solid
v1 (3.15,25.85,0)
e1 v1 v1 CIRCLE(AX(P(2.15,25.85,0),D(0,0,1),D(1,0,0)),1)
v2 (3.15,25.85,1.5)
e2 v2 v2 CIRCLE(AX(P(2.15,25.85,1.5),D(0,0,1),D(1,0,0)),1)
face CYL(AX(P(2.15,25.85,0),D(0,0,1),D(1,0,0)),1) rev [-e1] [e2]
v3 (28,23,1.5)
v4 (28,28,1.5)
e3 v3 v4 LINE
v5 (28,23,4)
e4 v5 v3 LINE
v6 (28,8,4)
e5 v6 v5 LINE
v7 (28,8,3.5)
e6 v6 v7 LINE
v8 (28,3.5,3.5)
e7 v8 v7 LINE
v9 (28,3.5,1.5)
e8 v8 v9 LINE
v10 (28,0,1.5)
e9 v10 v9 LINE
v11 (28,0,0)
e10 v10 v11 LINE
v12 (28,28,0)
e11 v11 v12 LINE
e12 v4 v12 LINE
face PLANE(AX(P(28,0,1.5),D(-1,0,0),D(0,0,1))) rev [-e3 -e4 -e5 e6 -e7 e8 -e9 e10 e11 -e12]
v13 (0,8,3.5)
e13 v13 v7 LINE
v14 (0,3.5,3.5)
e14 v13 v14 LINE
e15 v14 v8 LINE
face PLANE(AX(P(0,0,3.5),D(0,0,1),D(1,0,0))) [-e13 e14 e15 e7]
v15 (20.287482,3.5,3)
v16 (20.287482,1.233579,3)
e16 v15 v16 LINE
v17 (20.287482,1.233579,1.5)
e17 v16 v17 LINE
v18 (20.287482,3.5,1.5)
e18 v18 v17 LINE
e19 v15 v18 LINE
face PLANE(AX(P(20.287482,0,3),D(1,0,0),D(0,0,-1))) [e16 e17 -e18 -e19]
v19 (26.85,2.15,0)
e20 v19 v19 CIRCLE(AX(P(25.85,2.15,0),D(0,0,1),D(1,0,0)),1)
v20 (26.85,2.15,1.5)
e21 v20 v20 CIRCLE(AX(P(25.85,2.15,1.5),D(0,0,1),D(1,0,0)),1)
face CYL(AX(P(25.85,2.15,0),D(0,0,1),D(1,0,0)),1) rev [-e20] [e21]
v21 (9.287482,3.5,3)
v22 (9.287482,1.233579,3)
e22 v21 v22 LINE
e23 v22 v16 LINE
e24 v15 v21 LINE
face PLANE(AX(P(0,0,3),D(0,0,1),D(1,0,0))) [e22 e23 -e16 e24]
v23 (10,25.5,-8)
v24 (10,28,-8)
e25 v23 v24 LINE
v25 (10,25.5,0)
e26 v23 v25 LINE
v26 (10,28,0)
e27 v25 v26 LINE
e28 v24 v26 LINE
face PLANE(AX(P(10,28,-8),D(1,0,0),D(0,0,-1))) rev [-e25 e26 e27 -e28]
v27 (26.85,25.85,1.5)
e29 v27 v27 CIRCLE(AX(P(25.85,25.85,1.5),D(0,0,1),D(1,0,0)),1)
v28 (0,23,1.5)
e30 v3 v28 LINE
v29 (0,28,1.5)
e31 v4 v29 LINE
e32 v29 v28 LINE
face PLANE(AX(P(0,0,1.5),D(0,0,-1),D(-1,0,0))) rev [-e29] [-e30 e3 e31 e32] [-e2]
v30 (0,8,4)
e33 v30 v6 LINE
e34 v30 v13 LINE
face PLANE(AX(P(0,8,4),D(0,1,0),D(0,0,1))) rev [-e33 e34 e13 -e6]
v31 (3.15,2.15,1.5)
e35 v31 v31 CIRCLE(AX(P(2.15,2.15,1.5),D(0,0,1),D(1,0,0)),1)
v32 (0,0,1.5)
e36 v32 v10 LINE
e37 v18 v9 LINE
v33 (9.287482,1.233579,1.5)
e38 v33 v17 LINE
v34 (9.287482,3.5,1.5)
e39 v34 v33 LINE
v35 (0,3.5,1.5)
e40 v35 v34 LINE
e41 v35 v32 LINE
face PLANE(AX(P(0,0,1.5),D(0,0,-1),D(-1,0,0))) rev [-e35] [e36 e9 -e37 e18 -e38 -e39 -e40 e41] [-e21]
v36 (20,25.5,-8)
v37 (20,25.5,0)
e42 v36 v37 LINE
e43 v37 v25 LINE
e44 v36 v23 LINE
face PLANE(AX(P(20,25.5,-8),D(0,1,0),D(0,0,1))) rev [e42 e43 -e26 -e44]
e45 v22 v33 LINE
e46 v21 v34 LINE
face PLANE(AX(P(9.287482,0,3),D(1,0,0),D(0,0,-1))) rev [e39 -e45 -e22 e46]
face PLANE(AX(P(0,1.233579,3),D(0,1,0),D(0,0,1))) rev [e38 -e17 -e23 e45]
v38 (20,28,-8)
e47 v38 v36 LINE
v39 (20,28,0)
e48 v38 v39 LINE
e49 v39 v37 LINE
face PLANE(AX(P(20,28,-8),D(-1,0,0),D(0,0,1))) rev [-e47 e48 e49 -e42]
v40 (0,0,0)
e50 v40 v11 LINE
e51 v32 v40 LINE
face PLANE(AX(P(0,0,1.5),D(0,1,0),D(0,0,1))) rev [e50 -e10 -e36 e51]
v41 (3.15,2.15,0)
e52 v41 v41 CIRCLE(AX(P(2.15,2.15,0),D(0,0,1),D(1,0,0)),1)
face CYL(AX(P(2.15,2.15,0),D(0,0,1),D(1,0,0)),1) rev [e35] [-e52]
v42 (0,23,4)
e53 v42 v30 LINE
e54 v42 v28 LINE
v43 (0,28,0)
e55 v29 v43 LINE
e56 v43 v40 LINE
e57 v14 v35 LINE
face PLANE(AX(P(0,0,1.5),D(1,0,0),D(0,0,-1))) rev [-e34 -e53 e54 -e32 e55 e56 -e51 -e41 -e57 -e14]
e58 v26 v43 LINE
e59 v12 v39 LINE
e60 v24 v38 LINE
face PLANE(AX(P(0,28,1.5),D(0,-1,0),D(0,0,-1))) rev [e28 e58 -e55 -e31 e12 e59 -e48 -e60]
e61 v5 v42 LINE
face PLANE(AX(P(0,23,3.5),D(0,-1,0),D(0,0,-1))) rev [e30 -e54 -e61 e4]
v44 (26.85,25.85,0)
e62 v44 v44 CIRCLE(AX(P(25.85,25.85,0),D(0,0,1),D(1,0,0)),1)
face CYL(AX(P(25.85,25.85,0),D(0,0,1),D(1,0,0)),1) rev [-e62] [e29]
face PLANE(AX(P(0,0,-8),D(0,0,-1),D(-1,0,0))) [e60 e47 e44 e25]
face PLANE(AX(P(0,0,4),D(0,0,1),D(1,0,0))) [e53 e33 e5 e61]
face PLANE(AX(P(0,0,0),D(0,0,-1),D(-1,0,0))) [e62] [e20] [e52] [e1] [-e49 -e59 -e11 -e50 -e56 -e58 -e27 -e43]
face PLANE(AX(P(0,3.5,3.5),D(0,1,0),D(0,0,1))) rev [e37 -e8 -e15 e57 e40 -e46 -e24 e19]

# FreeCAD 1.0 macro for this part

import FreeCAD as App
import Part
import Sketcher
Q = App.Units.Quantity


def add_polygon(sketch, points):
    """Adds a closed chain of lines whose ends are joined by coincident constraints."""
    first, n = sketch.GeometryCount, len(points)
    for a, b in zip(points, points[1:] + points[:1]):
        sketch.addGeometry(Part.LineSegment(App.Vector(*a, 0), App.Vector(*b, 0)), False)
    for i in range(n):
        sketch.addConstraint(Sketcher.Constraint("Coincident", first + i, 2, first + (i + 1) % n, 1))

doc = App.newDocument("Part")
body = doc.addObject("PartDesign::Body", "Body")

# Sketch on XY plane
sketch1 = body.newObject("Sketcher::SketchObject", "Sketch")
sketch1.AttachmentSupport = (doc.getObject("XY_Plane"), [""])
sketch1.MapMode = "FlatFace"
add_polygon(sketch1, [(0, 28), (0, 0), (28, 0), (28, 28)])  # lines 0-3
sketch1.addConstraint([
    Sketcher.Constraint("Vertical", 0),
    Sketcher.Constraint("Horizontal", 1),
    Sketcher.Constraint("Vertical", 2),
    Sketcher.Constraint("Horizontal", 3),
    Sketcher.Constraint("Coincident", 0, 2, -1, 1),
    Sketcher.Constraint("Equal", 3, 0),
    Sketcher.Constraint("DistanceX", 1, 1, 1, 2, Q("28 mm")),
])
pad1 = body.newObject("PartDesign::Pad", "Pad")
pad1.Profile = sketch1
pad1.Length = 1.5

# Sketch on XY plane
sketch2 = body.newObject("Sketcher::SketchObject", "Sketch001")
sketch2.AttachmentSupport = (doc.getObject("XY_Plane"), [""])
sketch2.MapMode = "FlatFace"
sketch2.AttachmentOffset = App.Placement(App.Vector(0, 0, 1.5), App.Rotation())
add_polygon(sketch2, [(0, 23), (0, 4), (28, 4), (28, 23)])  # lines 0-3
sketch2.addConstraint([
    Sketcher.Constraint("Vertical", 0),
    Sketcher.Constraint("Horizontal", 1),
    Sketcher.Constraint("Vertical", 2),
    Sketcher.Constraint("Horizontal", 3),
    Sketcher.Constraint("PointOnObject", 0, 2, -2),
    Sketcher.Constraint("DistanceX", 1, 1, 1, 2, Q("28 mm")),
    Sketcher.Constraint("DistanceY", 0, 2, 0, 1, Q("19.5 mm")),
    Sketcher.Constraint("DistanceY", -1, 1, 2, 2, Q("23 mm")),
])
pad2 = body.newObject("PartDesign::Pad", "Pad001")
pad2.Profile = sketch2
pad2.Length = 2

# Sketch on XY plane
sketch3 = body.newObject("Sketcher::SketchObject", "Sketch002")
sketch3.AttachmentSupport = (doc.getObject("XY_Plane"), [""])
sketch3.MapMode = "FlatFace"
sketch3.AttachmentOffset = App.Placement(App.Vector(0, 0, 3.5), App.Rotation())
add_polygon(sketch3, [(0, 23), (0, 8), (28, 8), (28, 23)])  # lines 0-3
sketch3.addConstraint([
    Sketcher.Constraint("Vertical", 0),
    Sketcher.Constraint("Horizontal", 1),
    Sketcher.Constraint("Vertical", 2),
    Sketcher.Constraint("Horizontal", 3),
    Sketcher.Constraint("PointOnObject", 0, 2, -2),
    Sketcher.Constraint("DistanceX", 1, 1, 1, 2, Q("28 mm")),
    Sketcher.Constraint("DistanceY", 0, 2, 0, 1, Q("15 mm")),
    Sketcher.Constraint("DistanceY", -1, 1, 0, 2, Q("8 mm")),
])
pad3 = body.newObject("PartDesign::Pad", "Pad002")
pad3.Profile = sketch3
pad3.Length = 0.5

# Sketch on XY plane
sketch4 = body.newObject("Sketcher::SketchObject", "Sketch003")
sketch4.AttachmentSupport = (doc.getObject("XY_Plane"), [""])
sketch4.MapMode = "FlatFace"
sketch4.AttachmentOffset = App.Placement(App.Vector(0, 0, 1.5), App.Rotation())
add_polygon(sketch4, [(9.3, 3.5), (9.3, 1.2), (20.3, 1.2), (20.3, 3.5)])  # lines 0-3
sketch4.addConstraint([
    Sketcher.Constraint("Vertical", 0),
    Sketcher.Constraint("Horizontal", 1),
    Sketcher.Constraint("Vertical", 2),
    Sketcher.Constraint("Horizontal", 3),
    Sketcher.Constraint("DistanceX", 1, 1, 1, 2, Q("11 mm")),
    Sketcher.Constraint("DistanceY", -1, 1, 2, 2, Q("3.5 mm")),
    Sketcher.Constraint("DistanceY", 0, 2, 0, 1, Q("2.266421 mm")),
    Sketcher.Constraint("DistanceX", -1, 1, 0, 2, Q("9.287482 mm")),
])
pad4 = body.newObject("PartDesign::Pad", "Pad003")
pad4.Profile = sketch4
pad4.Length = 1.5

# Sketch on XY plane
sketch5 = body.newObject("Sketcher::SketchObject", "Sketch004")
sketch5.AttachmentSupport = (doc.getObject("XY_Plane"), [""])
sketch5.MapMode = "FlatFace"
sketch5.AttachmentOffset = App.Placement(App.Vector(0, 0, 1.5), App.Rotation())
sketch5.addGeometry([
    Part.Circle(App.Vector(2.1, 2.1, 0), App.Vector(0, 0, 1), 1),
    Part.Circle(App.Vector(2.1, 25.9, 0), App.Vector(0, 0, 1), 1),
    Part.Circle(App.Vector(25.9, 25.9, 0), App.Vector(0, 0, 1), 1),
    Part.Circle(App.Vector(25.9, 2.1, 0), App.Vector(0, 0, 1), 1),
], False)
sketch5.addConstraint([
    Sketcher.Constraint("Equal", 0, 1),
    Sketcher.Constraint("Equal", 1, 2),
    Sketcher.Constraint("Equal", 2, 3),
    Sketcher.Constraint("Horizontal", 1, 3, 2, 3),
    Sketcher.Constraint("Horizontal", 0, 3, 3, 3),
    Sketcher.Constraint("Vertical", 0, 3, 1, 3),
    Sketcher.Constraint("Vertical", 2, 3, 3, 3),
    Sketcher.Constraint("Diameter", 0, Q("2 mm")),
    Sketcher.Constraint("DistanceY", 0, 3, 1, 3, Q("23.7 mm")),
    Sketcher.Constraint("DistanceX", 1, 3, 2, 3, Q("23.7 mm")),
    Sketcher.Constraint("DistanceX", -1, 1, 0, 3, Q("2.15 mm")),
    Sketcher.Constraint("DistanceY", -1, 1, 0, 3, Q("2.15 mm")),
])
pocket1 = body.newObject("PartDesign::Pocket", "Pocket")
pocket1.Profile = sketch5
pocket1.Length = 1.5

# Sketch on XY plane
sketch6 = body.newObject("Sketcher::SketchObject", "Sketch005")
sketch6.AttachmentSupport = (doc.getObject("XY_Plane"), [""])
sketch6.MapMode = "FlatFace"
add_polygon(sketch6, [(20, 28), (20, 25.5), (10, 25.5), (10, 28)])  # lines 0-3
sketch6.addConstraint([
    Sketcher.Constraint("Vertical", 0),
    Sketcher.Constraint("Horizontal", 1),
    Sketcher.Constraint("Vertical", 2),
    Sketcher.Constraint("Horizontal", 3),
    Sketcher.Constraint("DistanceX", 1, 2, 1, 1, Q("10 mm")),
    Sketcher.Constraint("DistanceY", 0, 2, 0, 1, Q("2.5 mm")),
    Sketcher.Constraint("DistanceX", -1, 1, 0, 2, Q("20 mm")),
    Sketcher.Constraint("DistanceY", -1, 1, 2, 2, Q("28 mm")),
])
pad5 = body.newObject("PartDesign::Pad", "Pad004")
pad5.Profile = sketch6
pad5.Length = 8
pad5.Reversed = True

doc.recompute()
